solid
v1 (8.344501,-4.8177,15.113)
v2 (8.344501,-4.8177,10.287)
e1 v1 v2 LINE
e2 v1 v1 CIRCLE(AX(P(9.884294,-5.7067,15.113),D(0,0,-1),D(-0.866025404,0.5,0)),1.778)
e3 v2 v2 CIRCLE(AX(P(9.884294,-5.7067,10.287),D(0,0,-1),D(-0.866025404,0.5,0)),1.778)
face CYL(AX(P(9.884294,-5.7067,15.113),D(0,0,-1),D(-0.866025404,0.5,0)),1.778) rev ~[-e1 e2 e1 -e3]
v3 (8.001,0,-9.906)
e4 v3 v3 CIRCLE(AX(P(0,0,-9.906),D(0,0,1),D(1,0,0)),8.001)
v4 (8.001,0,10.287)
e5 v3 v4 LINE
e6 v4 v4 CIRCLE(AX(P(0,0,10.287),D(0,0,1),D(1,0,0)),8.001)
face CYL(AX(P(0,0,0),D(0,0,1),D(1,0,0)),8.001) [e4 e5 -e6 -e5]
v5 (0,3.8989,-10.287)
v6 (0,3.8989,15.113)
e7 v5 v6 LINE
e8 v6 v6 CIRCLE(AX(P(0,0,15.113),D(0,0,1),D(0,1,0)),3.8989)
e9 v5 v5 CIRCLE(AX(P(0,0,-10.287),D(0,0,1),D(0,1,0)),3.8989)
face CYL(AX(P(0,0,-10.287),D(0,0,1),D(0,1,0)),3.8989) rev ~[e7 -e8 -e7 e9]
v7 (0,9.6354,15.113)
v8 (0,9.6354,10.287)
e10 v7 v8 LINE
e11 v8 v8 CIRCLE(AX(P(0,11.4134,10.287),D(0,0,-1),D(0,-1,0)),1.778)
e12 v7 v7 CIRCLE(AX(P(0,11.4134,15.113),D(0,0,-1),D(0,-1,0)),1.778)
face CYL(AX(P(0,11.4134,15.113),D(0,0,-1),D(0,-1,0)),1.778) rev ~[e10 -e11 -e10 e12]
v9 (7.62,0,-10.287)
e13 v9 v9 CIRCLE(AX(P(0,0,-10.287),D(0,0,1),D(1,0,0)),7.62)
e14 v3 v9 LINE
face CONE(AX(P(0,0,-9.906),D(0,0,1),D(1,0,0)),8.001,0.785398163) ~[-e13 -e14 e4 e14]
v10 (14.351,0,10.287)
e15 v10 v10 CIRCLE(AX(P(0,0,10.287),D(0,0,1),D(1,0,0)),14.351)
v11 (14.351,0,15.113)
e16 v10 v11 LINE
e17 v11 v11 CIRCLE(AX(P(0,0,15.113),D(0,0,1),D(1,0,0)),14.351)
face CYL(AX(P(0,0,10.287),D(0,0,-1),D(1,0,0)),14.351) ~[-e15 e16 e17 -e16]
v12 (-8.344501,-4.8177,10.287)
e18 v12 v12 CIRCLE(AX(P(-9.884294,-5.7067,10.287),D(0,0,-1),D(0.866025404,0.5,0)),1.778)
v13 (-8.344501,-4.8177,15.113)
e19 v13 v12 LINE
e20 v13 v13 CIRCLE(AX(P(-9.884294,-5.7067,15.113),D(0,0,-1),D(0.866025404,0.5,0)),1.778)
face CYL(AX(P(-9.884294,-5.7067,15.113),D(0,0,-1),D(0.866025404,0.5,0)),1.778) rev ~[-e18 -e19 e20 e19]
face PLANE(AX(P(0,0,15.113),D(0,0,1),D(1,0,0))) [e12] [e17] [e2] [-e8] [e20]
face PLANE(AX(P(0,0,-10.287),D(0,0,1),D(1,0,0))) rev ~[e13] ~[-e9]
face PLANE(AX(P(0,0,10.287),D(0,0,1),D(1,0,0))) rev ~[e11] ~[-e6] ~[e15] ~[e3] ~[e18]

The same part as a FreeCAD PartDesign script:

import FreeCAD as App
import Part
import Sketcher
Q = App.Units.Quantity


def edges_at(feature, points):
    """Names of the edges that pass closest to the given points."""
    edges = feature.Shape.Edges
    near = lambda p: min(range(len(edges)), key=lambda i: edges[i].distToShape(Part.Vertex(*p))[0])
    return sorted({f"Edge{near(p) + 1}" for p in points})

doc = App.newDocument("Part")
params = doc.addObject("Spreadsheet::Sheet", "Params")
for row, (alias, value) in enumerate([
    ("sketch1_diameter", "0.63 in"),
    ("pad1_length", "0.81 in"),
    ("sketch2_diameter", "1.13 in"),
    ("pad2_length", "0.19 in"),
    ("sketch3_diameter", "0.307 in"),
    ("hole_diameter", "0.307 in"),
    ("chamfer_size", "0.015 in"),
    ("sketch4_diameter", "0.14 in"),
    ("hole2_diameter", "0.14 in"),
], start=1):
    params.set(f"A{row}", alias)
    params.set(f"B{row}", "=" + value)
    params.setAlias(f"B{row}", alias)

body = doc.addObject("PartDesign::Body", "Body")

# Sketch on XY plane
sketch1 = body.newObject("Sketcher::SketchObject", "Sketch")
sketch1.AttachmentSupport = (doc.getObject("XY_Plane"), [""])
sketch1.MapMode = "FlatFace"
sketch1.addGeometry(Part.Circle(App.Vector(0, 0, 0), App.Vector(0, 0, 1), 8), False)
sketch1.addConstraint(Sketcher.Constraint("Coincident", 0, 3, -1, 1))
sketch1.addConstraint(Sketcher.Constraint("Diameter", 0, Q("0.63 in")))
sketch1.setExpression("Constraints[1]", "Params.sketch1_diameter")
pad1 = body.newObject("PartDesign::Pad", "Pad")
pad1.Profile = sketch1
pad1.setExpression("Length", "Params.pad1_length")
pad1.Midplane = True

# Sketch on XY plane
sketch2 = body.newObject("Sketcher::SketchObject", "Sketch001")
sketch2.AttachmentSupport = (doc.getObject("XY_Plane"), [""])
sketch2.MapMode = "FlatFace"
sketch2.AttachmentOffset = App.Placement(App.Vector(0, 0, 0.405 * 25.4), App.Rotation())
sketch2.addGeometry(Part.Circle(App.Vector(0, 0, 0), App.Vector(0, 0, 1), 14), False)
sketch2.addConstraint(Sketcher.Constraint("Coincident", 0, 3, -1, 1))
sketch2.addConstraint(Sketcher.Constraint("Diameter", 0, Q("1.13 in")))
sketch2.setExpression("Constraints[1]", "Params.sketch2_diameter")
pad2 = body.newObject("PartDesign::Pad", "Pad001")
pad2.Profile = sketch2
pad2.setExpression("Length", "Params.pad2_length")

# Sketch on XY plane
sketch3 = body.newObject("Sketcher::SketchObject", "Sketch002")
sketch3.AttachmentSupport = (doc.getObject("XY_Plane"), [""])
sketch3.MapMode = "FlatFace"
sketch3.AttachmentOffset = App.Placement(App.Vector(0, 0, -0.405 * 25.4), App.Rotation())
sketch3.addGeometry(Part.Circle(App.Vector(0, 0, 0), App.Vector(0, 0, 1), 3.9), False)
sketch3.addConstraint(Sketcher.Constraint("Coincident", 0, 3, -1, 1))
sketch3.addConstraint(Sketcher.Constraint("Diameter", 0, Q("0.307 in")))
sketch3.setExpression("Constraints[1]", "Params.sketch3_diameter")
doc.recompute()
hole = body.newObject("PartDesign::Hole", "Hole")
hole.Profile = sketch3
hole.ThreadType = "None"
hole.setExpression("Diameter", "Params.hole_diameter")
hole.DepthType = "ThroughAll"
hole.Reversed = True
doc.recompute()

chamfer = body.newObject("PartDesign::Chamfer", "Chamfer")
chamfer.Base = (hole, edges_at(hole, [(-8.001, 0, -10.287)]))
chamfer.setExpression("Size", "Params.chamfer_size")

# Sketch on XY plane
sketch4 = body.newObject("Sketcher::SketchObject", "Sketch003")
sketch4.AttachmentSupport = (doc.getObject("XY_Plane"), [""])
sketch4.MapMode = "FlatFace"
sketch4.AttachmentOffset = App.Placement(App.Vector(0, 0, 0.595 * 25.4), App.Rotation())
sketch4.addGeometry(Part.Circle(App.Vector(0, 11.4, 0), App.Vector(0, 0, 1), 1.8), False)
sketch4.addConstraint(Sketcher.Constraint("PointOnObject", 0, 3, -2))
sketch4.addConstraint(Sketcher.Constraint("Diameter", 0, Q("0.14 in")))
sketch4.addConstraint(Sketcher.Constraint("DistanceY", -1, 1, 0, 3, 11.4134))
sketch4.setExpression("Constraints[1]", "Params.sketch4_diameter")
doc.recompute()
hole2 = body.newObject("PartDesign::Hole", "Hole001")
hole2.Profile = sketch4
hole2.ThreadType = "None"
hole2.setExpression("Diameter", "Params.hole2_diameter")
hole2.DepthType = "ThroughAll"
doc.recompute()

polarpattern = body.newObject("PartDesign::PolarPattern", "PolarPattern")
polarpattern.Originals = [hole2]
polarpattern.Axis = (doc.getObject("Z_Axis"), [""])
polarpattern.Angle = 360
polarpattern.Occurrences = 3
body.Tip = polarpattern

doc.recompute()
